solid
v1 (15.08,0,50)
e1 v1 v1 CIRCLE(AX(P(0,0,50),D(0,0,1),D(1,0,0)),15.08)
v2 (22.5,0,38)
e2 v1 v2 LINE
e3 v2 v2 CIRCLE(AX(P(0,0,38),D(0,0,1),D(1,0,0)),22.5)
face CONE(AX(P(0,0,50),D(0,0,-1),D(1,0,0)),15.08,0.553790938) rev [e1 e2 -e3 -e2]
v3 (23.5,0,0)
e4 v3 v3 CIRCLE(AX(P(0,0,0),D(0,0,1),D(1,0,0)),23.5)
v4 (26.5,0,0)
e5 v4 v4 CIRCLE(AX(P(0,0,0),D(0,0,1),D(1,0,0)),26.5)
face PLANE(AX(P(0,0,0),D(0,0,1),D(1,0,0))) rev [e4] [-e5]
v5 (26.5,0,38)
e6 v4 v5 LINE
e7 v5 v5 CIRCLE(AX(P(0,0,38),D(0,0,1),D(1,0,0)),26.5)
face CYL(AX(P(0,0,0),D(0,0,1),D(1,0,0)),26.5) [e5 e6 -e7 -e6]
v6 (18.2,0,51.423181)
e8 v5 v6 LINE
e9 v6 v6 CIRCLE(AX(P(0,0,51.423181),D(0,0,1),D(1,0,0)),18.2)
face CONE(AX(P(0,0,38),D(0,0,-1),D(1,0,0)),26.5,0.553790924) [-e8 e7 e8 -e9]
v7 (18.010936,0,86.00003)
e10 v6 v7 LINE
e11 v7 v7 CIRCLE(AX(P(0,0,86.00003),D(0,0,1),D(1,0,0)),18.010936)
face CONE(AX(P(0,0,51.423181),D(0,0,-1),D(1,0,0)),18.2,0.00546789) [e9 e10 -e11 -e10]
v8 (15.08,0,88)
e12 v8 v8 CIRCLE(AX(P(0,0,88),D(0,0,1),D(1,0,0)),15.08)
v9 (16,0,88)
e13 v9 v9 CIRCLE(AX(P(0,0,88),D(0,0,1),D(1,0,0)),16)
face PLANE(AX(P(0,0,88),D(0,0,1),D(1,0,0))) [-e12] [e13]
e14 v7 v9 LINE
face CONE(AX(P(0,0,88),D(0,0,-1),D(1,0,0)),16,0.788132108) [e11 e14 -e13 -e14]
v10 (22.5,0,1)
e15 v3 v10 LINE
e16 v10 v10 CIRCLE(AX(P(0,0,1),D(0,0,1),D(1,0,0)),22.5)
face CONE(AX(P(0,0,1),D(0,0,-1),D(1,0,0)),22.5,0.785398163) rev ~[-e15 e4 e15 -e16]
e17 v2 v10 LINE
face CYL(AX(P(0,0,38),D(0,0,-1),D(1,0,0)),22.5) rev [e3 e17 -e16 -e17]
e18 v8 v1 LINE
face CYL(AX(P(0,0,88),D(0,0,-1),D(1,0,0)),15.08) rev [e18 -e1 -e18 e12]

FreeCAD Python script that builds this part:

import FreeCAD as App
import Part
import Sketcher

V = App.Vector


def edges_at(feature, points):
    """Names of the edges that pass closest to the given points."""
    edges = feature.Shape.Edges
    near = lambda p: min(range(len(edges)), key=lambda i: edges[i].distToShape(Part.Vertex(*p))[0])
    return sorted({f"Edge{near(p) + 1}" for p in points})

doc = App.newDocument("Part")
params = doc.addObject("Spreadsheet::Sheet", "Params")
for row, (alias, value) in enumerate([
    ("sketch1_width", "4 mm"),
    ("sketch1_height", "38 mm"),
    ("sketch1_width2", "2.92 mm"),
    ("revolution_angle", "360 deg"),
    ("chamfer_size", "2 mm"),
    ("chamfer2_size", "1 mm"),
], start=1):
    params.set(f"A{row}", alias)
    params.set(f"B{row}", "=" + value)
    params.setAlias(f"B{row}", alias)

body = doc.addObject("PartDesign::Body", "Body")

# Sketch on XZ plane
sketch1 = body.newObject("Sketcher::SketchObject", "Sketch")
sketch1.AttachmentSupport = (doc.getObject("XZ_Plane"), [""])
sketch1.MapMode = "FlatFace"
sketch1.addGeometry([
    Part.LineSegment(V(22.5, 38, 0), V(22.5, 0, 0)),  # 0
    Part.LineSegment(V(22.5, 0, 0), V(26.5, 0, 0)),  # 1
    Part.LineSegment(V(26.5, 0, 0), V(26.5, 38, 0)),  # 2
    Part.LineSegment(V(26.5, 38, 0), V(18.2, 51.4, 0)),  # 3
    Part.LineSegment(V(18.2, 51.4, 0), V(18, 88, 0)),  # 4
    Part.LineSegment(V(18, 88, 0), V(15.1, 88, 0)),  # 5
    Part.LineSegment(V(15.1, 88, 0), V(15.1, 50, 0)),  # 6
    Part.LineSegment(V(15.1, 50, 0), V(22.5, 38, 0)),  # 7
], False)
sketch1.addConstraint([
    Sketcher.Constraint("Coincident", 0, 2, 1, 1),
    Sketcher.Constraint("Coincident", 1, 2, 2, 1),
    Sketcher.Constraint("Coincident", 2, 2, 3, 1),
    Sketcher.Constraint("Coincident", 3, 2, 4, 1),
    Sketcher.Constraint("Coincident", 4, 2, 5, 1),
    Sketcher.Constraint("Coincident", 5, 2, 6, 1),
    Sketcher.Constraint("Coincident", 6, 2, 7, 1),
    Sketcher.Constraint("Coincident", 7, 2, 0, 1),
    Sketcher.Constraint("Vertical", 0),
    Sketcher.Constraint("Horizontal", 1),
    Sketcher.Constraint("Vertical", 2),
    Sketcher.Constraint("Horizontal", 5),
    Sketcher.Constraint("Vertical", 6),
    Sketcher.Constraint("PointOnObject", 0, 2, -1),
    Sketcher.Constraint("Parallel", 3, 7),
    Sketcher.Constraint("Horizontal", 2, 2, 7, 2),
    Sketcher.Constraint("Equal", 2, 6),
    Sketcher.Constraint("DistanceX", 1, 1, 1, 2, 4.0),
    Sketcher.Constraint("DistanceY", 0, 2, 0, 1, 38.0),
    Sketcher.Constraint("DistanceX", -1, 1, 4, 2, 18.0),
    Sketcher.Constraint("DistanceY", -1, 1, 4, 2, 88.0),
    Sketcher.Constraint("DistanceX", 5, 2, 5, 1, 2.92),
    Sketcher.Constraint("DistanceX", -1, 1, 0, 2, 22.5),
    Sketcher.Constraint("DistanceX", -1, 1, 3, 2, 18.2),
])
sketch1.setExpression("Constraints[17]", "Params.sketch1_width")
sketch1.setExpression("Constraints[18]", "Params.sketch1_height")
sketch1.setExpression("Constraints[21]", "Params.sketch1_width2")
revolution = body.newObject("PartDesign::Revolution", "Revolution")
revolution.Profile = sketch1
revolution.ReferenceAxis = (sketch1, ["V_Axis"])
revolution.setExpression("Angle", "Params.revolution_angle")
doc.recompute()

chamfer = body.newObject("PartDesign::Chamfer", "Chamfer")
chamfer.Base = (revolution, edges_at(revolution, [(-18, 0, 88)]))
chamfer.setExpression("Size", "Params.chamfer_size")
doc.recompute()

chamfer2 = body.newObject("PartDesign::Chamfer", "Chamfer001")
chamfer2.Base = (chamfer, edges_at(chamfer, [(-22.5, 0, 0)]))
chamfer2.setExpression("Size", "Params.chamfer2_size")

doc.recompute()
